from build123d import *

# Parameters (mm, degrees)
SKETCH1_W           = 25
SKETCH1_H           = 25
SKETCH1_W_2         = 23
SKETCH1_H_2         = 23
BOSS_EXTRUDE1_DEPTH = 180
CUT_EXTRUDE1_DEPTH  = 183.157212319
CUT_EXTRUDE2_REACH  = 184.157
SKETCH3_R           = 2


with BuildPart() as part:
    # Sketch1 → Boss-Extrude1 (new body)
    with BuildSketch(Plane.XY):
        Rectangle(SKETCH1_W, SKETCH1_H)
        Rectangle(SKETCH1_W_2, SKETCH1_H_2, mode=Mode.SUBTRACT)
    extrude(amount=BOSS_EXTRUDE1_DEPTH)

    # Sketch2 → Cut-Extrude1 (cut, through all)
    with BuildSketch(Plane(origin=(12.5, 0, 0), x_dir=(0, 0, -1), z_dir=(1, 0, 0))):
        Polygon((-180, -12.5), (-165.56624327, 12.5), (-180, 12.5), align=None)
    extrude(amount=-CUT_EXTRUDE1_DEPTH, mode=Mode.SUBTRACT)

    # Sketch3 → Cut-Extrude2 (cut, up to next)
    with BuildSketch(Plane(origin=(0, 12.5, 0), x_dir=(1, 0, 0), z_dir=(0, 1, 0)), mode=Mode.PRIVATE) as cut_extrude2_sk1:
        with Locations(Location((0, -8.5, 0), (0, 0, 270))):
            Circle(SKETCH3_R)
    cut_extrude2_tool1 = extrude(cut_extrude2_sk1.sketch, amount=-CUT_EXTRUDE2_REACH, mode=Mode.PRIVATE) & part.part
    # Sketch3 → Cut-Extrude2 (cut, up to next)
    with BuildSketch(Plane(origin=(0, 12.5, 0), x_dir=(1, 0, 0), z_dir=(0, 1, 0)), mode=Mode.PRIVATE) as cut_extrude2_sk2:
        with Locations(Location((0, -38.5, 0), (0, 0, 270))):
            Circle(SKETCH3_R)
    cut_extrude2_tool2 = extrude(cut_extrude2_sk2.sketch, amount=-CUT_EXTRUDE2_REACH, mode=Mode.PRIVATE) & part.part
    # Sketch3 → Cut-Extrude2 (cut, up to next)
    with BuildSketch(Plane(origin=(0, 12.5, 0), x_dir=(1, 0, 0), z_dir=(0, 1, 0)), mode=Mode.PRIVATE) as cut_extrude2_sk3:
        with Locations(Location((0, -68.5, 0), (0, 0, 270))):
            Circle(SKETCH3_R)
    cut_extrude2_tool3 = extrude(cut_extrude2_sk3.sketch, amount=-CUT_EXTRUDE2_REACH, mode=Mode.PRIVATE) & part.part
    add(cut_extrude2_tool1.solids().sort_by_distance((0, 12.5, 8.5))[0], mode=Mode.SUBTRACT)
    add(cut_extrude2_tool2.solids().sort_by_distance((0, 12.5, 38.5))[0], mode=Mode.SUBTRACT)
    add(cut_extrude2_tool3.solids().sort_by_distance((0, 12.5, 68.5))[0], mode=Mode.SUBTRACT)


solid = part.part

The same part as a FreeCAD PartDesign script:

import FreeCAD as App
import Part
import Sketcher

V = App.Vector
Q = App.Units.Quantity


def add_polygon(sketch, points):
    """Adds a closed chain of lines whose ends are joined by coincident constraints."""
    first, n = sketch.GeometryCount, len(points)
    for a, b in zip(points, points[1:] + points[:1]):
        sketch.addGeometry(Part.LineSegment(App.Vector(*a, 0), App.Vector(*b, 0)), False)
    for i in range(n):
        sketch.addConstraint(Sketcher.Constraint("Coincident", first + i, 2, first + (i + 1) % n, 1))

doc = App.newDocument("Part")
params = doc.addObject("Spreadsheet::Sheet", "Params")
for row, (alias, value) in enumerate([
    ("sketch1_width", "25 mm"),
    ("sketch1_width2", "23 mm"),
    ("pad1_length", "180 mm"),
    ("sketch2_width", "25 mm"),
    ("sketch3_diameter", "4 mm"),
    ("sketch4_diameter", "4 mm"),
    ("sketch5_diameter", "4 mm"),
], start=1):
    params.set(f"A{row}", alias)
    params.set(f"B{row}", "=" + value)
    params.setAlias(f"B{row}", alias)

body = doc.addObject("PartDesign::Body", "Body")

# Sketch on XY plane
sketch1 = body.newObject("Sketcher::SketchObject", "Sketch")
sketch1.AttachmentSupport = (doc.getObject("XY_Plane"), [""])
sketch1.MapMode = "FlatFace"
add_polygon(sketch1, [(-12.5, 12.5), (-12.5, -12.5), (12.5, -12.5), (12.5, 12.5)])  # lines 0-3
add_polygon(sketch1, [(11.5, -11.5), (-11.5, -11.5), (-11.5, 11.5), (11.5, 11.5)])  # lines 4-7
sketch1.addConstraint([
    Sketcher.Constraint("Vertical", 0),
    Sketcher.Constraint("Horizontal", 1),
    Sketcher.Constraint("Vertical", 2),
    Sketcher.Constraint("Horizontal", 3),
    Sketcher.Constraint("Horizontal", 4),
    Sketcher.Constraint("Vertical", 5),
    Sketcher.Constraint("Horizontal", 6),
    Sketcher.Constraint("Vertical", 7),
    Sketcher.Constraint("Symmetric", 0, 2, 2, 2, -1, 1),
    Sketcher.Constraint("Symmetric", 4, 2, 6, 2, -1, 1),
    Sketcher.Constraint("Equal", 3, 0),
    Sketcher.Constraint("Equal", 6, 5),
    Sketcher.Constraint("DistanceX", 1, 1, 1, 2, 25.0),
    Sketcher.Constraint("DistanceX", 4, 2, 4, 1, 23.0),
])
sketch1.setExpression("Constraints[20]", "Params.sketch1_width")
sketch1.setExpression("Constraints[21]", "Params.sketch1_width2")
pad1 = body.newObject("PartDesign::Pad", "Pad")
pad1.Profile = sketch1
pad1.setExpression("Length", "Params.pad1_length")

# Sketch on YZ plane
sketch2 = body.newObject("Sketcher::SketchObject", "Sketch001")
sketch2.AttachmentSupport = (doc.getObject("YZ_Plane"), [""])
sketch2.MapMode = "FlatFace"
sketch2.AttachmentOffset = App.Placement(V(0, 0, 12.5), App.Rotation())
add_polygon(sketch2, [(-12.5, 180), (12.5, 165.566243), (12.5, 180)])  # lines 0-2
sketch2.addConstraint([
    Sketcher.Constraint("Vertical", 1),
    Sketcher.Constraint("Horizontal", 2),
    Sketcher.Constraint("DistanceX", 2, 2, 2, 1, 25.0),
    Sketcher.Constraint("Angle", 0, Q("-30 deg")),
    Sketcher.Constraint("DistanceY", -1, 1, 1, 2, 180.0),
    Sketcher.Constraint("DistanceX", -1, 1, 0, 2, 12.5),
])
sketch2.setExpression("Constraints[5]", "Params.sketch2_width")
pocket1 = body.newObject("PartDesign::Pocket", "Pocket")
pocket1.Profile = sketch2
pocket1.Type = "ThroughAll"

# Sketch on XZ plane
sketch3 = body.newObject("Sketcher::SketchObject", "Sketch002")
sketch3.AttachmentSupport = (doc.getObject("XZ_Plane"), [""])
sketch3.MapMode = "FlatFace"
sketch3.AttachmentOffset = App.Placement(V(0, 0, -12.5), App.Rotation())
sketch3.addGeometry(Part.Circle(V(0, 8.5, 0), V(0, 0, 1), 2), False)
sketch3.addConstraint([
    Sketcher.Constraint("PointOnObject", 0, 3, -2),
    Sketcher.Constraint("Diameter", 0, 4.0),
    Sketcher.Constraint("DistanceY", -1, 1, 0, 3, 8.5),
])
sketch3.setExpression("Constraints[1]", "Params.sketch3_diameter")
pocket2 = body.newObject("PartDesign::Pocket", "Pocket001")
pocket2.Profile = sketch3
pocket2.Type = "UpToFirst"
pocket2.Reversed = True

# Sketch on XZ plane
sketch4 = body.newObject("Sketcher::SketchObject", "Sketch003")
sketch4.AttachmentSupport = (doc.getObject("XZ_Plane"), [""])
sketch4.MapMode = "FlatFace"
sketch4.AttachmentOffset = App.Placement(V(0, 0, -12.5), App.Rotation())
sketch4.addGeometry(Part.Circle(V(0, 38.5, 0), V(0, 0, 1), 2), False)
sketch4.addConstraint([
    Sketcher.Constraint("PointOnObject", 0, 3, -2),
    Sketcher.Constraint("Diameter", 0, 4.0),
    Sketcher.Constraint("DistanceY", -1, 1, 0, 3, 38.5),
])
sketch4.setExpression("Constraints[1]", "Params.sketch4_diameter")
pocket3 = body.newObject("PartDesign::Pocket", "Pocket002")
pocket3.Profile = sketch4
pocket3.Type = "UpToFirst"
pocket3.Reversed = True

# Sketch on XZ plane
sketch5 = body.newObject("Sketcher::SketchObject", "Sketch004")
sketch5.AttachmentSupport = (doc.getObject("XZ_Plane"), [""])
sketch5.MapMode = "FlatFace"
sketch5.AttachmentOffset = App.Placement(V(0, 0, -12.5), App.Rotation())
sketch5.addGeometry(Part.Circle(V(0, 68.5, 0), V(0, 0, 1), 2), False)
sketch5.addConstraint([
    Sketcher.Constraint("PointOnObject", 0, 3, -2),
    Sketcher.Constraint("Diameter", 0, 4.0),
    Sketcher.Constraint("DistanceY", -1, 1, 0, 3, 68.5),
])
sketch5.setExpression("Constraints[1]", "Params.sketch5_diameter")
pocket4 = body.newObject("PartDesign::Pocket", "Pocket003")
pocket4.Profile = sketch5
pocket4.Type = "UpToFirst"
pocket4.Reversed = True

doc.recompute()
